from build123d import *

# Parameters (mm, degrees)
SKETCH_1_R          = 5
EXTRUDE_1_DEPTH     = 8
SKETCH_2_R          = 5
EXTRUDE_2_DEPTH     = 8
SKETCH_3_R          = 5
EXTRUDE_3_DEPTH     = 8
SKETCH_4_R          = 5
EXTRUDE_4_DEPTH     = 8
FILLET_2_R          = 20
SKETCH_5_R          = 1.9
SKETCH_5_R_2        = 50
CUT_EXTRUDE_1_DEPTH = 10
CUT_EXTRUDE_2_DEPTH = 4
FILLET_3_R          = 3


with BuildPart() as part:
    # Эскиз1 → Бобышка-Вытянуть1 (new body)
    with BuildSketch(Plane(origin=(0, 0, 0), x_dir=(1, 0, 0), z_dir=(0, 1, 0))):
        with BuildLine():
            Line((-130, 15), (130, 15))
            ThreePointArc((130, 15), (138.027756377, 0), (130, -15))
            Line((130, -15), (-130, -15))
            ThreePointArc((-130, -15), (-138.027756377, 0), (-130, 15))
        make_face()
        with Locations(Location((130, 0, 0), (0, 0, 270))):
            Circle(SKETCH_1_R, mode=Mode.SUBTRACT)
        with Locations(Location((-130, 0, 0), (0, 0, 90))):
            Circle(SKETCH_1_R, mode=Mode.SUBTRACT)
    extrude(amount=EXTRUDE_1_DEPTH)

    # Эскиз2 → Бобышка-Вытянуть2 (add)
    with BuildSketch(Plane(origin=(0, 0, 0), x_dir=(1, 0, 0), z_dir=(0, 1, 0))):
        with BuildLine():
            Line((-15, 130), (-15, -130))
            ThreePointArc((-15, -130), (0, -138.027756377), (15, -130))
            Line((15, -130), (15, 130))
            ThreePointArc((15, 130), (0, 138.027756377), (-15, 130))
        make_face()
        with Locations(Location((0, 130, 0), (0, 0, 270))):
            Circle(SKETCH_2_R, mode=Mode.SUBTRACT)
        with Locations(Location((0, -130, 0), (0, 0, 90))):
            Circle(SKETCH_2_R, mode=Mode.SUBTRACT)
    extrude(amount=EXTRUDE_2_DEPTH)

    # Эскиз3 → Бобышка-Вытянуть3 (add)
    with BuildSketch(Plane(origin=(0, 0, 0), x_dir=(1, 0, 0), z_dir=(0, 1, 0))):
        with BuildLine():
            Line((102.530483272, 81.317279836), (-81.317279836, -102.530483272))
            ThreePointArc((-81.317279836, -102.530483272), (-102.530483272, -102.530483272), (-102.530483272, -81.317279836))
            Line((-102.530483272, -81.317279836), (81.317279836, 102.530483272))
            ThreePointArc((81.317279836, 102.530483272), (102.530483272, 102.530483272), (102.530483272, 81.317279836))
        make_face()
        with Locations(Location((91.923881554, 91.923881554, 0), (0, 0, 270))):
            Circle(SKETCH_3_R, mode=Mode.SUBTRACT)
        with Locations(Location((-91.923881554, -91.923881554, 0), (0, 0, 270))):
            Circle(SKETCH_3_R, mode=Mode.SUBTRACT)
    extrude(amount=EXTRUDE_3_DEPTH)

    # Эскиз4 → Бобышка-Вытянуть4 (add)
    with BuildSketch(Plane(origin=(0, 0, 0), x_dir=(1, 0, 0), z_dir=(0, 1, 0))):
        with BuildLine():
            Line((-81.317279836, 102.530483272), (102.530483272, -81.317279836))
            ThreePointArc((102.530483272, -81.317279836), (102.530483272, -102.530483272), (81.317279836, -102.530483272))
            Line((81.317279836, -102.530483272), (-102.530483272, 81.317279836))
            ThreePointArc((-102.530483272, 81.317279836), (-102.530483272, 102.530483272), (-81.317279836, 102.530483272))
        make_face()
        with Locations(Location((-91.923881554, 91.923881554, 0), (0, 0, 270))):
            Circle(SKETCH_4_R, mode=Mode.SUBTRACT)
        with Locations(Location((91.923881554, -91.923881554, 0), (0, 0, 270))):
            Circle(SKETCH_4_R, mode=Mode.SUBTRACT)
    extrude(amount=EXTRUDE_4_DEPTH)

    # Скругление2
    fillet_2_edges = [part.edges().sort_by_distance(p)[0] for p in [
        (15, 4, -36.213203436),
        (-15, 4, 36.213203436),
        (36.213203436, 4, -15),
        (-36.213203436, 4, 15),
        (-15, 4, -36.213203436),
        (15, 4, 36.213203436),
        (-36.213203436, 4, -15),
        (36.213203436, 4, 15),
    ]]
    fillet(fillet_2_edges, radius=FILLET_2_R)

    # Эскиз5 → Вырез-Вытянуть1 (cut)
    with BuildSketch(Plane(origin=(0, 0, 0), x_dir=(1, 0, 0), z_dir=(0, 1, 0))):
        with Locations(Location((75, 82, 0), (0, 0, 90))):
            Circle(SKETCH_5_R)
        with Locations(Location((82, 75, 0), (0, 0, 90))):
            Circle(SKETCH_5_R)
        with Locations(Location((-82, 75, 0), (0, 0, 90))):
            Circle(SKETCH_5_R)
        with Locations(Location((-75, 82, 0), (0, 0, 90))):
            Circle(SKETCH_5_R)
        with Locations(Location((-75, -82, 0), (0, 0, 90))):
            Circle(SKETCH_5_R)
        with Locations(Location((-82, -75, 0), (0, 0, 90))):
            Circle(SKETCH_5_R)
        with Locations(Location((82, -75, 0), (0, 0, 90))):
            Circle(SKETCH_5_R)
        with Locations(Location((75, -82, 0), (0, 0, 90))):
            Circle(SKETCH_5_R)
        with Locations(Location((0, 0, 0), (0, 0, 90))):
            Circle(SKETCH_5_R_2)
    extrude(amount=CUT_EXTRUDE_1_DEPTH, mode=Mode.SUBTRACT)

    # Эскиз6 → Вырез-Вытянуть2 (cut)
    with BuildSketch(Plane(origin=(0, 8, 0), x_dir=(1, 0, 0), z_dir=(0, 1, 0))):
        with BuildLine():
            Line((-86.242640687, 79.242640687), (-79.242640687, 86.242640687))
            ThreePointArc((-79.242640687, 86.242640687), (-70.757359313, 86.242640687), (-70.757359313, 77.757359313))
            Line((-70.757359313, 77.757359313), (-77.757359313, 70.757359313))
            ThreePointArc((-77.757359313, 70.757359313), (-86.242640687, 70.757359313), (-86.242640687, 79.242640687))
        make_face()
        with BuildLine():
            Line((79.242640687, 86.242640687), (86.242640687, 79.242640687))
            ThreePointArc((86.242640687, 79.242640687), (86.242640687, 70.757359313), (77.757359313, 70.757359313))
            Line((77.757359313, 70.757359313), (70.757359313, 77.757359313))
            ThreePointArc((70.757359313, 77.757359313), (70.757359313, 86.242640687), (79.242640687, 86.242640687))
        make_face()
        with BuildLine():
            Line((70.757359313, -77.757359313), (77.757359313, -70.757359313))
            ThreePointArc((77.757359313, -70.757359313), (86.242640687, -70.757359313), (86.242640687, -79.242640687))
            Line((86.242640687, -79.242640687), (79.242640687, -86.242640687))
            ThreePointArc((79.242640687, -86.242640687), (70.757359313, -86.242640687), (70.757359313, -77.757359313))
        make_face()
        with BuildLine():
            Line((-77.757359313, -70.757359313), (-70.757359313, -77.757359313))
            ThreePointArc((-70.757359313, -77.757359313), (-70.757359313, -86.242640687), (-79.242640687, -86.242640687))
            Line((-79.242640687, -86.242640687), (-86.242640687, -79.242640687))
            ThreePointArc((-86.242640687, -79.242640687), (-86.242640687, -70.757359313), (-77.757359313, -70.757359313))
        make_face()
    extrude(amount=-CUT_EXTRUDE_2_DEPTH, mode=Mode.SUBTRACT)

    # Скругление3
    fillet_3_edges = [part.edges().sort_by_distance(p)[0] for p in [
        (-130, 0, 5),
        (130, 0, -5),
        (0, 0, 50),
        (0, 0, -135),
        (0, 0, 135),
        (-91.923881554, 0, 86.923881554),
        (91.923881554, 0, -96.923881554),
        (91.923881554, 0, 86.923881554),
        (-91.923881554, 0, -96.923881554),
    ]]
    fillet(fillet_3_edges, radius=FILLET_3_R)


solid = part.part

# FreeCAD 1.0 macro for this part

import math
import FreeCAD as App
import Part
import Sketcher
from FreeCAD import Vector
Q = App.Units.Quantity


def edges_at(feature, points):
    """Names of the edges that pass closest to the given points."""
    edges = feature.Shape.Edges
    near = lambda p: min(range(len(edges)), key=lambda i: edges[i].distToShape(Part.Vertex(*p))[0])
    return sorted({f"Edge{near(p) + 1}" for p in points})

doc = App.newDocument("Part")
body = doc.addObject("PartDesign::Body", "Body")

# Sketch on XZ plane
sketch1 = doc.addObject("Sketcher::SketchObject", "Sketch")
body.addObject(sketch1)
sketch1.AttachmentSupport = (doc.XZ_Plane, [""])
sketch1.MapMode = "FlatFace"
sketch1.addGeometry([
    Part.LineSegment(Vector(130, -15, 0), Vector(-130, -15, 0)),  # 0
    Part.ArcOfCircle(Part.Circle(Vector(-120, 0, 0), Vector(0, 0, 1), 18), math.radians(124), math.radians(236)),  # 1
    Part.LineSegment(Vector(-130, 15, 0), Vector(130, 15, 0)),  # 2
    Part.ArcOfCircle(Part.Circle(Vector(120, 0, 0), Vector(0, 0, 1), 18), math.radians(-56), math.radians(56)),  # 3
    Part.Circle(Vector(130, 0, 0), Vector(0, 0, 1), 5),  # 4
    Part.Circle(Vector(-130, 0, 0), Vector(0, 0, 1), 5),  # 5
], False)
sketch1.addConstraint([
    Sketcher.Constraint("Coincident", 0, 2, 1, 2),
    Sketcher.Constraint("Coincident", 1, 1, 2, 1),
    Sketcher.Constraint("Coincident", 2, 2, 3, 2),
    Sketcher.Constraint("Coincident", 3, 1, 0, 1),
    Sketcher.Constraint("Horizontal", 0),
    Sketcher.Constraint("Horizontal", 2),
    Sketcher.Constraint("Equal", 1, 3),
    Sketcher.Constraint("Equal", 4, 5),
    Sketcher.Constraint("Symmetric", 1, 3, 3, 3, -1, 1),
    Sketcher.Constraint("Symmetric", 4, 3, 5, 3, -1, 1),
    Sketcher.Constraint("Symmetric", 0, 2, 1, 1, -1),
    Sketcher.Constraint("PointOnObject", 4, 3, -1),
    Sketcher.Constraint("Vertical", 5, 3, 0, 2),
    Sketcher.Constraint("Diameter", 4, 10.0),
    Sketcher.Constraint("DistanceX", 0, 2, 0, 1, 260.0),
    Sketcher.Constraint("DistanceX", 1, 3, -1, 1, 120.0),
    Sketcher.Constraint("DistanceY", 0, 2, -1, 1, 15.0),
])
pad1 = doc.addObject("PartDesign::Pad", "Pad")
body.addObject(pad1)
pad1.Profile = sketch1
pad1.Length = 8
pad1.Reversed = True

# Sketch on XZ plane
sketch2 = doc.addObject("Sketcher::SketchObject", "Sketch001")
body.addObject(sketch2)
sketch2.AttachmentSupport = (doc.XZ_Plane, [""])
sketch2.MapMode = "FlatFace"
sketch2.addGeometry([
    Part.LineSegment(Vector(-15, -130, 0), Vector(-15, 130, 0)),  # 0
    Part.ArcOfCircle(Part.Circle(Vector(0, 120, 0), Vector(0, 0, 1), 18), math.radians(34), math.radians(146)),  # 1
    Part.LineSegment(Vector(15, 130, 0), Vector(15, -130, 0)),  # 2
    Part.ArcOfCircle(Part.Circle(Vector(0, -120, 0), Vector(0, 0, 1), 18), math.radians(-146), math.radians(-34)),  # 3
    Part.Circle(Vector(0, 130, 0), Vector(0, 0, 1), 5),  # 4
    Part.Circle(Vector(0, -130, 0), Vector(0, 0, 1), 5),  # 5
], False)
sketch2.addConstraint([
    Sketcher.Constraint("Coincident", 0, 2, 1, 2),
    Sketcher.Constraint("Coincident", 1, 1, 2, 1),
    Sketcher.Constraint("Coincident", 2, 2, 3, 2),
    Sketcher.Constraint("Coincident", 3, 1, 0, 1),
    Sketcher.Constraint("Vertical", 0),
    Sketcher.Constraint("Vertical", 2),
    Sketcher.Constraint("Equal", 1, 3),
    Sketcher.Constraint("Equal", 4, 5),
    Sketcher.Constraint("Symmetric", 1, 3, 3, 3, -1, 1),
    Sketcher.Constraint("Symmetric", 4, 3, 5, 3, -1, 1),
    Sketcher.Constraint("Symmetric", 0, 2, 1, 1, -2),
    Sketcher.Constraint("PointOnObject", 4, 3, -2),
    Sketcher.Constraint("Horizontal", 4, 3, 0, 2),
    Sketcher.Constraint("Diameter", 4, 10.0),
    Sketcher.Constraint("DistanceY", 0, 1, 0, 2, 260.0),
    Sketcher.Constraint("DistanceY", -1, 1, 1, 3, 120.0),
    Sketcher.Constraint("DistanceX", 0, 2, -1, 1, 15.0),
])
pad2 = doc.addObject("PartDesign::Pad", "Pad001")
body.addObject(pad2)
pad2.Profile = sketch2
pad2.Length = 8
pad2.Reversed = True

# Sketch on XZ plane
sketch3 = doc.addObject("Sketcher::SketchObject", "Sketch002")
body.addObject(sketch3)
sketch3.AttachmentSupport = (doc.XZ_Plane, [""])
sketch3.MapMode = "FlatFace"
sketch3.addGeometry([
    Part.LineSegment(Vector(-81, 103, 0), Vector(103, -81, 0)),  # 0
    Part.ArcOfCircle(Part.Circle(Vector(92, -92, 0), Vector(0, 0, 1), 15), math.radians(-135), math.radians(45)),  # 1
    Part.LineSegment(Vector(81, -103, 0), Vector(-103, 81, 0)),  # 2
    Part.ArcOfCircle(Part.Circle(Vector(-92, 92, 0), Vector(0, 0, 1), 15), math.radians(45), math.radians(225)),  # 3
    Part.Circle(Vector(-92, 92, 0), Vector(0, 0, 1), 5),  # 4
    Part.Circle(Vector(92, -92, 0), Vector(0, 0, 1), 5),  # 5
], False)
sketch3.addConstraint([
    Sketcher.Constraint("Tangent", 0, 2, 1, 2),
    Sketcher.Constraint("Tangent", 1, 1, 2, 1),
    Sketcher.Constraint("Tangent", 2, 2, 3, 2),
    Sketcher.Constraint("Tangent", 3, 1, 0, 1),
    Sketcher.Constraint("Coincident", 4, 3, 3, 3),
    Sketcher.Constraint("Coincident", 5, 3, 1, 3),
    Sketcher.Constraint("Equal", 1, 3),
    Sketcher.Constraint("Equal", 4, 5),
    Sketcher.Constraint("Symmetric", 1, 3, 3, 3, -1, 1),
    Sketcher.Constraint("Diameter", 4, 10.0),
    Sketcher.Constraint("Radius", 1, 15.0),
    Sketcher.Constraint("Angle", 0, Q("-45 deg")),
    Sketcher.Constraint("Distance", 0, 260.0),
])
pad3 = doc.addObject("PartDesign::Pad", "Pad002")
body.addObject(pad3)
pad3.Profile = sketch3
pad3.Length = 8
pad3.Reversed = True

# Sketch on XZ plane
sketch4 = doc.addObject("Sketcher::SketchObject", "Sketch003")
body.addObject(sketch4)
sketch4.AttachmentSupport = (doc.XZ_Plane, [""])
sketch4.MapMode = "FlatFace"
sketch4.addGeometry([
    Part.LineSegment(Vector(103, 81, 0), Vector(-81, -103, 0)),  # 0
    Part.ArcOfCircle(Part.Circle(Vector(-92, -92, 0), Vector(0, 0, 1), 15), math.radians(135), math.radians(315)),  # 1
    Part.LineSegment(Vector(-103, -81, 0), Vector(81, 103, 0)),  # 2
    Part.ArcOfCircle(Part.Circle(Vector(92, 92, 0), Vector(0, 0, 1), 15), math.radians(-45), math.radians(135)),  # 3
    Part.Circle(Vector(92, 92, 0), Vector(0, 0, 1), 5),  # 4
    Part.Circle(Vector(-92, -92, 0), Vector(0, 0, 1), 5),  # 5
], False)
sketch4.addConstraint([
    Sketcher.Constraint("Tangent", 0, 2, 1, 2),
    Sketcher.Constraint("Tangent", 1, 1, 2, 1),
    Sketcher.Constraint("Tangent", 2, 2, 3, 2),
    Sketcher.Constraint("Tangent", 3, 1, 0, 1),
    Sketcher.Constraint("Coincident", 4, 3, 3, 3),
    Sketcher.Constraint("Coincident", 5, 3, 1, 3),
    Sketcher.Constraint("Equal", 1, 3),
    Sketcher.Constraint("Equal", 4, 5),
    Sketcher.Constraint("Symmetric", 1, 3, 3, 3, -1, 1),
    Sketcher.Constraint("Diameter", 4, 10.0),
    Sketcher.Constraint("Radius", 1, 15.0),
    Sketcher.Constraint("Angle", 0, Q("-135 deg")),
    Sketcher.Constraint("Distance", 0, 260.0),
])
pad4 = doc.addObject("PartDesign::Pad", "Pad003")
body.addObject(pad4)
pad4.Profile = sketch4
pad4.Length = 8
pad4.Reversed = True
doc.recompute()

fillet = doc.addObject("PartDesign::Fillet", "Fillet")
body.addObject(fillet)
fillet.Base = (pad4, edges_at(pad4, [
    (15, 4, -36.213),
    (-15, 4, 36.213),
    (36.213, 4, -15),
    (-36.213, 4, 15),
    (-15, 4, -36.213),
    (15, 4, 36.213),
    (-36.213, 4, -15),
    (36.213, 4, 15),
]))
fillet.Radius = 20

# Sketch on XZ plane
sketch5 = doc.addObject("Sketcher::SketchObject", "Sketch004")
body.addObject(sketch5)
sketch5.AttachmentSupport = (doc.XZ_Plane, [""])
sketch5.MapMode = "FlatFace"
sketch5.addGeometry([
    Part.Circle(Vector(75, -82, 0), Vector(0, 0, 1), 1.9),  # 0
    Part.Circle(Vector(82, -75, 0), Vector(0, 0, 1), 1.9),  # 1
    Part.Circle(Vector(-82, -75, 0), Vector(0, 0, 1), 1.9),  # 2
    Part.Circle(Vector(-75, -82, 0), Vector(0, 0, 1), 1.9),  # 3
    Part.Circle(Vector(-75, 82, 0), Vector(0, 0, 1), 1.9),  # 4
    Part.Circle(Vector(-82, 75, 0), Vector(0, 0, 1), 1.9),  # 5
    Part.Circle(Vector(82, 75, 0), Vector(0, 0, 1), 1.9),  # 6
    Part.Circle(Vector(75, 82, 0), Vector(0, 0, 1), 1.9),  # 7
    Part.Circle(Vector(0, 0, 0), Vector(0, 0, 1), 50),  # 8
], False)
sketch5.addConstraint([
    Sketcher.Constraint("Coincident", 8, 3, -1, 1),
    Sketcher.Constraint("Equal", 0, 1),
    Sketcher.Constraint("Equal", 1, 2),
    Sketcher.Constraint("Equal", 2, 3),
    Sketcher.Constraint("Equal", 3, 4),
    Sketcher.Constraint("Equal", 4, 5),
    Sketcher.Constraint("Equal", 5, 6),
    Sketcher.Constraint("Equal", 6, 7),
    Sketcher.Constraint("Symmetric", 0, 3, 4, 3, -1, 1),
    Sketcher.Constraint("Symmetric", 1, 3, 5, 3, -1, 1),
    Sketcher.Constraint("Symmetric", 2, 3, 6, 3, -1, 1),
    Sketcher.Constraint("Symmetric", 3, 3, 7, 3, -1, 1),
    Sketcher.Constraint("Symmetric", 1, 3, 2, 3, -2),
    Sketcher.Constraint("Symmetric", 0, 3, 3, 3, -2),
    Sketcher.Constraint("Diameter", 8, 100.0),
    Sketcher.Constraint("Diameter", 0, 3.8),
    Sketcher.Constraint("DistanceX", -1, 1, 0, 3, 75.0),
    Sketcher.Constraint("DistanceY", 0, 3, -1, 1, 82.0),
    Sketcher.Constraint("DistanceX", -1, 1, 1, 3, 82.0),
    Sketcher.Constraint("DistanceY", 1, 3, -1, 1, 75.0),
])
pocket1 = doc.addObject("PartDesign::Pocket", "Pocket")
body.addObject(pocket1)
pocket1.Profile = sketch5
pocket1.Length = 10

# Sketch on XZ plane
sketch6 = doc.addObject("Sketcher::SketchObject", "Sketch005")
body.addObject(sketch6)
sketch6.AttachmentSupport = (doc.XZ_Plane, [""])
sketch6.MapMode = "FlatFace"
sketch6.AttachmentOffset = App.Placement(Vector(0, 0, -8), App.Rotation())
sketch6.addGeometry([
    Part.LineSegment(Vector(-79, -86, 0), Vector(-86, -79, 0)),  # 0
    Part.ArcOfCircle(Part.Circle(Vector(-82, -75, 0), Vector(0, 0, 1), 6), math.radians(45), math.radians(225)),  # 1
    Part.LineSegment(Vector(-78, -71, 0), Vector(-71, -78, 0)),  # 2
    Part.ArcOfCircle(Part.Circle(Vector(-75, -82, 0), Vector(0, 0, 1), 6), math.radians(-135), math.radians(45)),  # 3
    Part.LineSegment(Vector(86, -79, 0), Vector(79, -86, 0)),  # 4
    Part.ArcOfCircle(Part.Circle(Vector(75, -82, 0), Vector(0, 0, 1), 6), math.radians(135), math.radians(315)),  # 5
    Part.LineSegment(Vector(71, -78, 0), Vector(78, -71, 0)),  # 6
    Part.ArcOfCircle(Part.Circle(Vector(82, -75, 0), Vector(0, 0, 1), 6), math.radians(-45), math.radians(135)),  # 7
    Part.LineSegment(Vector(78, 71, 0), Vector(71, 78, 0)),  # 8
    Part.ArcOfCircle(Part.Circle(Vector(75, 82, 0), Vector(0, 0, 1), 6), math.radians(45), math.radians(225)),  # 9
    Part.LineSegment(Vector(79, 86, 0), Vector(86, 79, 0)),  # 10
    Part.ArcOfCircle(Part.Circle(Vector(82, 75, 0), Vector(0, 0, 1), 6), math.radians(-135), math.radians(45)),  # 11
    Part.LineSegment(Vector(-71, 78, 0), Vector(-78, 71, 0)),  # 12
    Part.ArcOfCircle(Part.Circle(Vector(-82, 75, 0), Vector(0, 0, 1), 6), math.radians(135), math.radians(315)),  # 13
    Part.LineSegment(Vector(-86, 79, 0), Vector(-79, 86, 0)),  # 14
    Part.ArcOfCircle(Part.Circle(Vector(-75, 82, 0), Vector(0, 0, 1), 6), math.radians(-45), math.radians(135)),  # 15
], False)
sketch6.addConstraint([
    Sketcher.Constraint("Tangent", 0, 2, 1, 2),
    Sketcher.Constraint("Tangent", 1, 1, 2, 1),
    Sketcher.Constraint("Tangent", 2, 2, 3, 2),
    Sketcher.Constraint("Tangent", 3, 1, 0, 1),
    Sketcher.Constraint("Tangent", 4, 2, 5, 2),
    Sketcher.Constraint("Tangent", 5, 1, 6, 1),
    Sketcher.Constraint("Tangent", 6, 2, 7, 2),
    Sketcher.Constraint("Tangent", 7, 1, 4, 1),
    Sketcher.Constraint("Tangent", 8, 2, 9, 2),
    Sketcher.Constraint("Tangent", 9, 1, 10, 1),
    Sketcher.Constraint("Tangent", 10, 2, 11, 2),
    Sketcher.Constraint("Tangent", 11, 1, 8, 1),
    Sketcher.Constraint("Tangent", 12, 2, 13, 2),
    Sketcher.Constraint("Tangent", 13, 1, 14, 1),
    Sketcher.Constraint("Tangent", 14, 2, 15, 2),
    Sketcher.Constraint("Tangent", 15, 1, 12, 1),
    Sketcher.Constraint("Equal", 1, 3),
    Sketcher.Constraint("Equal", 3, 5),
    Sketcher.Constraint("Equal", 5, 7),
    Sketcher.Constraint("Equal", 7, 9),
    Sketcher.Constraint("Equal", 9, 11),
    Sketcher.Constraint("Equal", 11, 13),
    Sketcher.Constraint("Equal", 13, 15),
    Sketcher.Constraint("Symmetric", 3, 3, 9, 3, -1, 1),
    Sketcher.Constraint("Symmetric", 1, 3, 11, 3, -1, 1),
    Sketcher.Constraint("Symmetric", 7, 3, 13, 3, -1, 1),
    Sketcher.Constraint("Symmetric", 5, 3, 15, 3, -1, 1),
    Sketcher.Constraint("Symmetric", 3, 3, 5, 3, -2),
    Sketcher.Constraint("Symmetric", 1, 3, 7, 3, -2),
    Sketcher.Constraint("Perpendicular", 2, 4),
    Sketcher.Constraint("Radius", 1, 6.0),
    Sketcher.Constraint("DistanceX", 1, 3, -1, 1, 82.0),
    Sketcher.Constraint("DistanceY", 1, 3, -1, 1, 75.0),
    Sketcher.Constraint("DistanceX", 3, 3, -1, 1, 75.0),
])
pocket2 = doc.addObject("PartDesign::Pocket", "Pocket001")
body.addObject(pocket2)
pocket2.Profile = sketch6
pocket2.Length = 4
pocket2.Reversed = True
doc.recompute()

fillet2 = doc.addObject("PartDesign::Fillet", "Fillet001")
body.addObject(fillet2)
fillet2.Base = (pocket2, edges_at(pocket2, [
    (-130, 0, 5),
    (130, 0, -5),
    (0, 0, 50),
    (0, 0, -135),
    (0, 0, 135),
    (-91.924, 0, 86.924),
    (91.924, 0, -96.924),
    (91.924, 0, 86.924),
    (-91.924, 0, -96.924),
]))
fillet2.Radius = 3

doc.recompute()
